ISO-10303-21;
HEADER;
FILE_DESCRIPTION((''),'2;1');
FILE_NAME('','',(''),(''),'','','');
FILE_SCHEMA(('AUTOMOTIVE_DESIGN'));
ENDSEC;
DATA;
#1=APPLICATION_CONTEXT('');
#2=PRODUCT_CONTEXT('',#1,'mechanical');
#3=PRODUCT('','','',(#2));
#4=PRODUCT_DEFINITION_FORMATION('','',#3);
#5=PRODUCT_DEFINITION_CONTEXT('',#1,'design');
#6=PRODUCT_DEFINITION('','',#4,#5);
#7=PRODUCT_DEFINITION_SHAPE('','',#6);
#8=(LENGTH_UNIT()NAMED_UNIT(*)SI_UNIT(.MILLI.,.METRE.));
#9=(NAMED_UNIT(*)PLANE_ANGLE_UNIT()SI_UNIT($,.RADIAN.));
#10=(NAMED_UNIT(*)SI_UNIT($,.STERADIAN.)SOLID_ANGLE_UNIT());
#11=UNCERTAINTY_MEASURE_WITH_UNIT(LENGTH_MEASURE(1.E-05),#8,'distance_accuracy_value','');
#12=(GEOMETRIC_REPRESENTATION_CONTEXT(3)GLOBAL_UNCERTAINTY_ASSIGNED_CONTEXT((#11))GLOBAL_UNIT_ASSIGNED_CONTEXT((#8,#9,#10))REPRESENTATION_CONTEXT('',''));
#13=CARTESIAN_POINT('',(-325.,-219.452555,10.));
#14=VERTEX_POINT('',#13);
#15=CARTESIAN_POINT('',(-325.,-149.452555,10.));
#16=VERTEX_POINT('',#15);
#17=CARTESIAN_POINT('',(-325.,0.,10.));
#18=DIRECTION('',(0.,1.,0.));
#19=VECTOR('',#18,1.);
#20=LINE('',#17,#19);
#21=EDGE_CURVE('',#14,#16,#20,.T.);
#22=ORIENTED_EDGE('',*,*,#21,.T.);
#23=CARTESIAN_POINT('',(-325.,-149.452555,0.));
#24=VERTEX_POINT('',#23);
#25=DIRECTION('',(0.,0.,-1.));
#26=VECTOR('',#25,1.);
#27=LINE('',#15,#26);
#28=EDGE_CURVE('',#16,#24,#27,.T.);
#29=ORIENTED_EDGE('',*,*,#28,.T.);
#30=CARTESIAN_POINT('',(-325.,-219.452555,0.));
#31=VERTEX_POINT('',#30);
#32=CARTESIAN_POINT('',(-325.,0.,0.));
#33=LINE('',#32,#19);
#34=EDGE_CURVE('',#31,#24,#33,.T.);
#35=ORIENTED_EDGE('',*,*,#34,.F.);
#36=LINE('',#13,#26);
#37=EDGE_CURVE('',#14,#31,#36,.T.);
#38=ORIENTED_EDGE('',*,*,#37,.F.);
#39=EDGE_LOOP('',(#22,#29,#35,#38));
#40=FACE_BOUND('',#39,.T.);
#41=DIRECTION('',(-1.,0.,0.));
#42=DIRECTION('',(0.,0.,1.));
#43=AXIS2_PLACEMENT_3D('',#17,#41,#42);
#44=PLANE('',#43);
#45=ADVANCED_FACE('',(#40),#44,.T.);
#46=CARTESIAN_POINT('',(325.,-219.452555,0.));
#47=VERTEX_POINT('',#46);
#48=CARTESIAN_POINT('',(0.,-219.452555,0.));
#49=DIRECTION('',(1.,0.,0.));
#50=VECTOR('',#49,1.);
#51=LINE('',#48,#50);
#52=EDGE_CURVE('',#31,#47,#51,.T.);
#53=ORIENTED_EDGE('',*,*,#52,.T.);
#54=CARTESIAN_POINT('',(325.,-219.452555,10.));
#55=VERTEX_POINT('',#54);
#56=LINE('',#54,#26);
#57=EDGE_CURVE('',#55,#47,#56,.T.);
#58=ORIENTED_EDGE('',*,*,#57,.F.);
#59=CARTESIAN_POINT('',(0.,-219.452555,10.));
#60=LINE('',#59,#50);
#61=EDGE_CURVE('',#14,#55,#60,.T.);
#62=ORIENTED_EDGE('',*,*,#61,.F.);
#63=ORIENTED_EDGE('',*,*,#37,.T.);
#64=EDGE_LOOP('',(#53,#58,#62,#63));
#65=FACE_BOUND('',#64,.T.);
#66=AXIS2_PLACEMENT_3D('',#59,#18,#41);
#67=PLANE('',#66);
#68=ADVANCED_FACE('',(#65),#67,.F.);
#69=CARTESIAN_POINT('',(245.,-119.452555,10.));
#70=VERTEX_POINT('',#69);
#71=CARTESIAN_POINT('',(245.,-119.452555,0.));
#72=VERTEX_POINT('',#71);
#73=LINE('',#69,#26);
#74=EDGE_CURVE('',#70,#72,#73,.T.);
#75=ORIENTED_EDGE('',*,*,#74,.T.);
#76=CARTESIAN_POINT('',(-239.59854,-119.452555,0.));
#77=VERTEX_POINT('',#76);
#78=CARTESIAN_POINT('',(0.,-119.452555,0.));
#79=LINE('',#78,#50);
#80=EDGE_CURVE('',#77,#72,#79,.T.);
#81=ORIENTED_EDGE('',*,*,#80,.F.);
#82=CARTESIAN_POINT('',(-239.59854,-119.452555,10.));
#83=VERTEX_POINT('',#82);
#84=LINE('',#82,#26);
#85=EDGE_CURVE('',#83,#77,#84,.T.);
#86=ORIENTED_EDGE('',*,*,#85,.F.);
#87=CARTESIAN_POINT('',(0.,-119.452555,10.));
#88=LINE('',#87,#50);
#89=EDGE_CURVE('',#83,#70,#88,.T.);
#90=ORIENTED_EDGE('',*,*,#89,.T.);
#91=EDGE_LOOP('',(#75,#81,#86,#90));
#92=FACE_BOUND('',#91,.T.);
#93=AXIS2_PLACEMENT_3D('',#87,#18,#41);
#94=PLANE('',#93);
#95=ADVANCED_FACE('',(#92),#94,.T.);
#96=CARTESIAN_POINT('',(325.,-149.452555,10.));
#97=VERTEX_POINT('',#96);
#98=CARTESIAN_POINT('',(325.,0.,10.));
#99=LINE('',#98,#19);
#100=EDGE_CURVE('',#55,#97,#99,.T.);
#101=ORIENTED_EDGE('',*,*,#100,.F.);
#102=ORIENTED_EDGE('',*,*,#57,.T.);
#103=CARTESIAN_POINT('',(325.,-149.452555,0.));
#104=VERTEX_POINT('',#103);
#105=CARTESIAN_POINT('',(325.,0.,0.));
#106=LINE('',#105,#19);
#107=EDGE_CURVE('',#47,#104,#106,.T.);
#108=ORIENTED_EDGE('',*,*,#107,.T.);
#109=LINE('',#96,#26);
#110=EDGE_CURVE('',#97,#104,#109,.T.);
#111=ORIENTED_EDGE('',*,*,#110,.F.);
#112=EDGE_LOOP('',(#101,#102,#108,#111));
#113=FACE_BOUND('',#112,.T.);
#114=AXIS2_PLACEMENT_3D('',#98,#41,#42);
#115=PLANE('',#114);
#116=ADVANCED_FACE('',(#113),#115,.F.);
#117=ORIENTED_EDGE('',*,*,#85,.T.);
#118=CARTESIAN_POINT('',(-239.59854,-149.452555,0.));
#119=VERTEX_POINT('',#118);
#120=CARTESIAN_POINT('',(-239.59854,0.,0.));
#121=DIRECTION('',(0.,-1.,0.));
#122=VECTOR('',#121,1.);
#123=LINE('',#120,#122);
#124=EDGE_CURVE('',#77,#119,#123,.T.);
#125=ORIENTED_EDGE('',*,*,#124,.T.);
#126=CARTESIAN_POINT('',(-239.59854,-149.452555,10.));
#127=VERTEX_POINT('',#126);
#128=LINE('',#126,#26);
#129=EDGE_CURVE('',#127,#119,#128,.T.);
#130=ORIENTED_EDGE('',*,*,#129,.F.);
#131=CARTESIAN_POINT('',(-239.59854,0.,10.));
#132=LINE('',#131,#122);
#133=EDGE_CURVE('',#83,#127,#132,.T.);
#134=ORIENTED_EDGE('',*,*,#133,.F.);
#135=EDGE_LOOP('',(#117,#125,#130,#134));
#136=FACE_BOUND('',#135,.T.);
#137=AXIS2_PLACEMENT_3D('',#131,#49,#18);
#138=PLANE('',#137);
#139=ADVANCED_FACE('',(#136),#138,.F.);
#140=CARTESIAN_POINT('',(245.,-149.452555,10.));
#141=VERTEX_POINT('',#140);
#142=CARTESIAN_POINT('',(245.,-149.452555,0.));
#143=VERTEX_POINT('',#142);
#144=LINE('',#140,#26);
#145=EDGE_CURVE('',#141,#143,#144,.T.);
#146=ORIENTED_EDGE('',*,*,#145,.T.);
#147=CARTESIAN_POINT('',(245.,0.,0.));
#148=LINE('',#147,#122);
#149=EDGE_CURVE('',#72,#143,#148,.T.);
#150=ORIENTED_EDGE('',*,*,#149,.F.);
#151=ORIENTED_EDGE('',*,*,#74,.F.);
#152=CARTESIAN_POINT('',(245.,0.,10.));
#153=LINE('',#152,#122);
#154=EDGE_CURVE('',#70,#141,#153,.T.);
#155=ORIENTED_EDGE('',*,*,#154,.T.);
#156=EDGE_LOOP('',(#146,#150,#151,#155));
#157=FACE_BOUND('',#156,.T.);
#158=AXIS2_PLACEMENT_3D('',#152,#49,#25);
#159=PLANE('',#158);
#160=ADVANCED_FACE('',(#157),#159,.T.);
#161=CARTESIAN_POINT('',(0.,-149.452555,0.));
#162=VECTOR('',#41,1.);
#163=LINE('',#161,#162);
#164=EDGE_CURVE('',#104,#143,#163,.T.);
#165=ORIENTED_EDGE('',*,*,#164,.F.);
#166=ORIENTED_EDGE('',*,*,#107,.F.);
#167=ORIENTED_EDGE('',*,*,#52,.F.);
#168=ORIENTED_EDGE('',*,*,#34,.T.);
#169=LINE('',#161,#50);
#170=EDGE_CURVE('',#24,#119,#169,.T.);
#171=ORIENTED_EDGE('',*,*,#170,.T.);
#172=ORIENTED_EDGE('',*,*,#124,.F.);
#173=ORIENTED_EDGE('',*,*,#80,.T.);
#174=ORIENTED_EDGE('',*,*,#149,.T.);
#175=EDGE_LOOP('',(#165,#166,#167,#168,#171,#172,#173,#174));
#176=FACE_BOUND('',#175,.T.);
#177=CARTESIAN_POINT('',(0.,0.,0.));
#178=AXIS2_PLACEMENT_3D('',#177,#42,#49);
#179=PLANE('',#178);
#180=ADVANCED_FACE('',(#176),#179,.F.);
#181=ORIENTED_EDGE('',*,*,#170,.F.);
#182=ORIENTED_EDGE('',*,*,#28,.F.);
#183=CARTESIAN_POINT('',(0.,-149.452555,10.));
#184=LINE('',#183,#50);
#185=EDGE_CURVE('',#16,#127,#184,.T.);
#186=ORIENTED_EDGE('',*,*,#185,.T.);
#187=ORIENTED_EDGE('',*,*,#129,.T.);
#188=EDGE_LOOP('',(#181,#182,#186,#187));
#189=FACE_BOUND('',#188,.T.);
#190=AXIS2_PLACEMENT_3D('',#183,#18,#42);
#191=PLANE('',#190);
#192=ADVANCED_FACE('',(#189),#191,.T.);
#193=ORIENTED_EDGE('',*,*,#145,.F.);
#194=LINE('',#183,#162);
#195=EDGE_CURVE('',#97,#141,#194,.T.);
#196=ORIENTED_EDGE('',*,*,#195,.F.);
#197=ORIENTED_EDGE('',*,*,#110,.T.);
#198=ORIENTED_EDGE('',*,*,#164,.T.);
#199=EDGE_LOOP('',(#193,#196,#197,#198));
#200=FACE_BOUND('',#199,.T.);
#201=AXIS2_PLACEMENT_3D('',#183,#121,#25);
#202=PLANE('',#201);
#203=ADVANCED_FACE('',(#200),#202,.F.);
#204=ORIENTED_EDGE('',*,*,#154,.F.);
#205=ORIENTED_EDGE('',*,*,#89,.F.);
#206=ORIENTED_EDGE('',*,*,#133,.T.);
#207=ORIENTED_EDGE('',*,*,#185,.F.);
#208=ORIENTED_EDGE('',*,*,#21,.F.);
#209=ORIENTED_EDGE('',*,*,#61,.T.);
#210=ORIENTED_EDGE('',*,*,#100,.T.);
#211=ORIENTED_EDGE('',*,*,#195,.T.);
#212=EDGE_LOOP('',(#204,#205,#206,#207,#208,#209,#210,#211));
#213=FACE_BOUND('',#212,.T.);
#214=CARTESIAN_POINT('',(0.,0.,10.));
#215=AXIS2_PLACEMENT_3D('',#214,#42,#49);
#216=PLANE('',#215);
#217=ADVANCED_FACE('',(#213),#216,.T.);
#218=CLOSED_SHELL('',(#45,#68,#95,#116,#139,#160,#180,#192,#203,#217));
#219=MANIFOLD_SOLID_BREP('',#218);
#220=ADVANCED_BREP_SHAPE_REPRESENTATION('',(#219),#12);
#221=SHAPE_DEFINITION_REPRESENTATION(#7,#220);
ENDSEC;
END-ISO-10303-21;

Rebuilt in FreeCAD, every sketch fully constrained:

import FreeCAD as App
import Part
import Sketcher

V = App.Vector
Q = App.Units.Quantity

doc = App.newDocument("Part")
params = doc.addObject("Spreadsheet::Sheet", "Params")
for row, (alias, value) in enumerate([
    ("sketch1_width", "650 mm"),
    ("sketch1_width2", "80 mm"),
    ("sketch1_height", "70 mm"),
    ("sketch1_height2", "30 mm"),
    ("pad1_length", "10 mm"),
], start=1):
    params.set(f"A{row}", alias)
    params.set(f"B{row}", "=" + value)
    params.setAlias(f"B{row}", alias)

body = doc.addObject("PartDesign::Body", "Body")

# Sketch on XY plane
sketch1 = body.newObject("Sketcher::SketchObject", "Sketch")
sketch1.AttachmentSupport = (doc.getObject("XY_Plane"), [""])
sketch1.MapMode = "FlatFace"
sketch1.addGeometry([
    Part.LineSegment(V(-325, -149.452555, 0), V(-325, -219.452555, 0)),  # 0
    Part.LineSegment(V(-325, -219.452555, 0), V(325, -219.452555, 0)),  # 1
    Part.LineSegment(V(325, -219.452555, 0), V(325, -149.452555, 0)),  # 2
    Part.LineSegment(V(325, -149.452555, 0), V(245, -149.452555, 0)),  # 3
    Part.LineSegment(V(245, -149.452555, 0), V(245, -119.452555, 0)),  # 4
    Part.LineSegment(V(245, -119.452555, 0), V(-239.59854, -119.452555, 0)),  # 5
    Part.LineSegment(V(-239.59854, -119.452555, 0), V(-239.59854, -149.452555, 0)),  # 6
    Part.LineSegment(V(-239.59854, -149.452555, 0), V(-325, -149.452555, 0)),  # 7
], False)
sketch1.addConstraint([
    Sketcher.Constraint("Coincident", 0, 2, 1, 1),
    Sketcher.Constraint("Coincident", 1, 2, 2, 1),
    Sketcher.Constraint("Coincident", 2, 2, 3, 1),
    Sketcher.Constraint("Coincident", 3, 2, 4, 1),
    Sketcher.Constraint("Coincident", 4, 2, 5, 1),
    Sketcher.Constraint("Coincident", 5, 2, 6, 1),
    Sketcher.Constraint("Coincident", 6, 2, 7, 1),
    Sketcher.Constraint("Coincident", 7, 2, 0, 1),
    Sketcher.Constraint("Vertical", 0),
    Sketcher.Constraint("Horizontal", 1),
    Sketcher.Constraint("Vertical", 2),
    Sketcher.Constraint("Horizontal", 3),
    Sketcher.Constraint("Vertical", 4),
    Sketcher.Constraint("Horizontal", 5),
    Sketcher.Constraint("Vertical", 6),
    Sketcher.Constraint("Horizontal", 7),
    Sketcher.Constraint("Symmetric", 2, 2, 7, 2, -2),
    Sketcher.Constraint("DistanceX", 1, 1, 1, 2, Q("650 mm")),
    Sketcher.Constraint("DistanceX", 3, 2, 3, 1, Q("80 mm")),
    Sketcher.Constraint("DistanceY", 0, 2, 0, 1, Q("70 mm")),
    Sketcher.Constraint("DistanceY", 4, 1, 4, 2, Q("30 mm")),
    Sketcher.Constraint("DistanceX", 5, 2, 5, 1, Q("484.59854 mm")),
    Sketcher.Constraint("DistanceY", 0, 2, -1, 1, Q("219.452555 mm")),
])
sketch1.setExpression("Constraints[17]", "Params.sketch1_width")
sketch1.setExpression("Constraints[18]", "Params.sketch1_width2")
sketch1.setExpression("Constraints[19]", "Params.sketch1_height")
sketch1.setExpression("Constraints[20]", "Params.sketch1_height2")
pad1 = body.newObject("PartDesign::Pad", "Pad")
pad1.Profile = sketch1
pad1.setExpression("Length", "Params.pad1_length")

doc.recompute()
